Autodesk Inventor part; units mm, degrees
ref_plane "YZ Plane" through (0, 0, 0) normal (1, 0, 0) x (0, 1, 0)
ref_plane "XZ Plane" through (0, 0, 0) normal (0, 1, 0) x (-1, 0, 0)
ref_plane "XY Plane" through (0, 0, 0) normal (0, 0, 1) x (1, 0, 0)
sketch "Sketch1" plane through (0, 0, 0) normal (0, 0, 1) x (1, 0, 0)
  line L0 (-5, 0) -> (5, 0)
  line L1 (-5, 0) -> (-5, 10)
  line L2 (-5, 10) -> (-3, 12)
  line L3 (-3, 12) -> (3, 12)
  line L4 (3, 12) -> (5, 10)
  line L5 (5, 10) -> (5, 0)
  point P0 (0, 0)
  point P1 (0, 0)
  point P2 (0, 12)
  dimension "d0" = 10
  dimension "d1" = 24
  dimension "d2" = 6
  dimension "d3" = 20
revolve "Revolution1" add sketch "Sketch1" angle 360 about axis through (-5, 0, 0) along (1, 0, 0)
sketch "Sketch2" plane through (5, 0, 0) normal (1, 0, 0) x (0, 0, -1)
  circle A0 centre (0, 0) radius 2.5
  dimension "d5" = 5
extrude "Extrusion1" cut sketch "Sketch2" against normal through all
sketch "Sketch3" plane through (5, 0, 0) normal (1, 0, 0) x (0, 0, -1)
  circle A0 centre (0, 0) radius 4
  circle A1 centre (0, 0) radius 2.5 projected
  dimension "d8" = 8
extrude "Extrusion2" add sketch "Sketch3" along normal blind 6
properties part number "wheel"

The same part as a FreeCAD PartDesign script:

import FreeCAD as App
import Part
import Sketcher

V = App.Vector
Q = App.Units.Quantity

doc = App.newDocument("Part")
params = doc.addObject("Spreadsheet::Sheet", "Params")
for row, (alias, value) in enumerate([
    ("sketch1_width", "10 mm"),
    ("sketch1_width2", "6 mm"),
    ("revolution_angle", "360 deg"),
    ("sketch2_diameter", "5 mm"),
    ("sketch3_diameter", "8 mm"),
    ("sketch3_diameter2", "5 mm"),
    ("pad1_length", "6 mm"),
], start=1):
    params.set(f"A{row}", alias)
    params.set(f"B{row}", "=" + value)
    params.setAlias(f"B{row}", alias)

body = doc.addObject("PartDesign::Body", "Body")

sketch1 = body.newObject("Sketcher::SketchObject", "Sketch")
sketch1.AttachmentSupport = (doc.getObject("XY_Plane"), [""])
sketch1.MapMode = "FlatFace"
sketch1.addGeometry([
    Part.LineSegment(V(-5, 10, 0), V(-5, 0, 0)),
    Part.LineSegment(V(-5, 0, 0), V(5, 0, 0)),
    Part.LineSegment(V(5, 0, 0), V(5, 10, 0)),
    Part.LineSegment(V(5, 10, 0), V(3, 12, 0)),
    Part.LineSegment(V(3, 12, 0), V(-3, 12, 0)),
    Part.LineSegment(V(-3, 12, 0), V(-5, 10, 0)),
], False)
sketch1.addConstraint([
    Sketcher.Constraint("Coincident", 0, 2, 1, 1),
    Sketcher.Constraint("Coincident", 1, 2, 2, 1),
    Sketcher.Constraint("Coincident", 2, 2, 3, 1),
    Sketcher.Constraint("Coincident", 3, 2, 4, 1),
    Sketcher.Constraint("Coincident", 4, 2, 5, 1),
    Sketcher.Constraint("Coincident", 5, 2, 0, 1),
    Sketcher.Constraint("Vertical", 0),
    Sketcher.Constraint("Horizontal", 1),
    Sketcher.Constraint("Vertical", 2),
    Sketcher.Constraint("Horizontal", 4),
    Sketcher.Constraint("Symmetric", 0, 2, 1, 2, -1, 1),
    Sketcher.Constraint("Perpendicular", 3, 5),
    Sketcher.Constraint("Horizontal", 2, 2, 5, 2),
    Sketcher.Constraint("Equal", 1, 0),
    Sketcher.Constraint("Equal", 3, 5),
    Sketcher.Constraint("DistanceX", 1, 1, 1, 2, Q("10 mm")),
    Sketcher.Constraint("DistanceX", 4, 2, 4, 1, Q("6 mm")),
])
sketch1.setExpression("Constraints[15]", "Params.sketch1_width")
sketch1.setExpression("Constraints[16]", "Params.sketch1_width2")
revolution = body.newObject("PartDesign::Revolution", "Revolution")
revolution.Profile = sketch1
revolution.ReferenceAxis = (sketch1, ["H_Axis"])
revolution.setExpression("Angle", "Params.revolution_angle")

sketch2 = body.newObject("Sketcher::SketchObject", "Sketch001")
sketch2.AttachmentSupport = (doc.getObject("YZ_Plane"), [""])
sketch2.MapMode = "FlatFace"
sketch2.AttachmentOffset = App.Placement(V(0, 0, 5), App.Rotation())
sketch2.addGeometry(Part.Circle(V(0, 0, 0), V(0, 0, 1), 2.5), False)
sketch2.addConstraint([
    Sketcher.Constraint("Coincident", 0, 3, -1, 1),
    Sketcher.Constraint("Diameter", 0, Q("5 mm")),
])
sketch2.setExpression("Constraints[1]", "Params.sketch2_diameter")
pocket1 = body.newObject("PartDesign::Pocket", "Pocket")
pocket1.Profile = sketch2
pocket1.Type = "ThroughAll"

sketch3 = body.newObject("Sketcher::SketchObject", "Sketch002")
sketch3.AttachmentSupport = (doc.getObject("YZ_Plane"), [""])
sketch3.MapMode = "FlatFace"
sketch3.AttachmentOffset = App.Placement(V(0, 0, 5), App.Rotation())
sketch3.addGeometry([
    Part.Circle(V(0, 0, 0), V(0, 0, 1), 4),
    Part.Circle(V(0, 0, 0), V(0, 0, 1), 2.5),
], False)
sketch3.addConstraint([
    Sketcher.Constraint("Coincident", 0, 3, -1, 1),
    Sketcher.Constraint("Coincident", 1, 3, -1, 1),
    Sketcher.Constraint("Diameter", 0, Q("8 mm")),
    Sketcher.Constraint("Diameter", 1, Q("5 mm")),
])
sketch3.setExpression("Constraints[2]", "Params.sketch3_diameter")
sketch3.setExpression("Constraints[3]", "Params.sketch3_diameter2")
pad1 = body.newObject("PartDesign::Pad", "Pad")
pad1.Profile = sketch3
pad1.setExpression("Length", "Params.pad1_length")

doc.recompute()
